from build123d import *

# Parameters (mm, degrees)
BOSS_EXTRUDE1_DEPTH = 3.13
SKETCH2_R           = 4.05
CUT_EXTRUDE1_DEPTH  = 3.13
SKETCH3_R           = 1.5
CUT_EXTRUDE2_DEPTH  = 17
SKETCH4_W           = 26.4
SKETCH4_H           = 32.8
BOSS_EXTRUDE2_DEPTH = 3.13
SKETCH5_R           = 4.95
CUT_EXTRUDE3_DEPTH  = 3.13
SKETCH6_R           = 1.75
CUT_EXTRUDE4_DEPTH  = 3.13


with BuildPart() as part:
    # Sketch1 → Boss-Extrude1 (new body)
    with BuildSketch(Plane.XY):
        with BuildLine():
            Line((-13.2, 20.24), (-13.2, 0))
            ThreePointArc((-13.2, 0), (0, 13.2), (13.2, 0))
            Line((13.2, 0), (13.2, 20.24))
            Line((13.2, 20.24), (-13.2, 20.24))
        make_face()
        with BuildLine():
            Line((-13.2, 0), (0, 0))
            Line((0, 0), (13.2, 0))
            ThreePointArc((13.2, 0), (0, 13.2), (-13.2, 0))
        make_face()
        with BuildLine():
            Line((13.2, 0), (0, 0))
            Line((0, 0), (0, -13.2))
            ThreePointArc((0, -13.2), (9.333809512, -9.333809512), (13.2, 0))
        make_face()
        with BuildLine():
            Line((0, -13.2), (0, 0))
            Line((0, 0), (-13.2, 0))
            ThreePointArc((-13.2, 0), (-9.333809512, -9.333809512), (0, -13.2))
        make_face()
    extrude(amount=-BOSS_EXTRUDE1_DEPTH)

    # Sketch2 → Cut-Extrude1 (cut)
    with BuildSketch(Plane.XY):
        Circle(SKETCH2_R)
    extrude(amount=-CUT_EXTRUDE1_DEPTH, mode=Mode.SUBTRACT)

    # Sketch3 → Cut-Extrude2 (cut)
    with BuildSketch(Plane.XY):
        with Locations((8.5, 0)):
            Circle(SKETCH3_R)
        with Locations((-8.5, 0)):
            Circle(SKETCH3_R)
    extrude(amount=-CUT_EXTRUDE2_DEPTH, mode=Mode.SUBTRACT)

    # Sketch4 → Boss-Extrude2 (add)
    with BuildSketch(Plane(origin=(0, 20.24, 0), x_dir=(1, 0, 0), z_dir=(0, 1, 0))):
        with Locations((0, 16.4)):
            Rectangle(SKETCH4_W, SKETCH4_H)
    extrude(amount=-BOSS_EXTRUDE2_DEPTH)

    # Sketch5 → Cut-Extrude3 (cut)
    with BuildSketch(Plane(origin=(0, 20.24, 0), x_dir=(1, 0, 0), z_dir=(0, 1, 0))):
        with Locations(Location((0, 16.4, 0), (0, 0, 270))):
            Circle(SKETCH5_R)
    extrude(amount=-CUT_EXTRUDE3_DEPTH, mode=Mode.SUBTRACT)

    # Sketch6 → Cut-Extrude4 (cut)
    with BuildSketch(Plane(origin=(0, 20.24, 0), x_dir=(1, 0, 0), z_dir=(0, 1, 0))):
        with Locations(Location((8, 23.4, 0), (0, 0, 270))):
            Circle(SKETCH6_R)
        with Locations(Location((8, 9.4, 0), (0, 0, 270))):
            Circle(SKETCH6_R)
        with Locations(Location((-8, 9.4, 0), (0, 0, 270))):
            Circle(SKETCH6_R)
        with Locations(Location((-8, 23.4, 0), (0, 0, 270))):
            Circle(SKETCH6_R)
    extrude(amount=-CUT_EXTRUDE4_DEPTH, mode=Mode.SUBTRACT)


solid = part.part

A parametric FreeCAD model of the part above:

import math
import FreeCAD as App
import Part
import Sketcher

V = App.Vector

doc = App.newDocument("Part")
params = doc.addObject("Spreadsheet::Sheet", "Params")
for row, (alias, value) in enumerate([
    ("sketch1_radius", "13.2 mm"),
    ("sketch1_height", "20.24 mm"),
    ("pad1_length", "3.13 mm"),
    ("sketch2_diameter", "8.1 mm"),
    ("pocket1_length", "3.13 mm"),
    ("sketch3_diameter", "3 mm"),
    ("pocket2_length", "17 mm"),
    ("sketch4_width", "26.4 mm"),
    ("sketch4_height", "32.8 mm"),
    ("pad2_length", "3.13 mm"),
    ("sketch5_diameter", "9.9 mm"),
    ("pocket3_length", "3.13 mm"),
    ("sketch6_diameter", "3.5 mm"),
    ("pocket4_length", "3.13 mm"),
], start=1):
    params.set(f"A{row}", alias)
    params.set(f"B{row}", "=" + value)
    params.setAlias(f"B{row}", alias)

body = doc.addObject("PartDesign::Body", "Body")

# Sketch on XY plane
sketch1 = doc.addObject("Sketcher::SketchObject", "Sketch")
body.addObject(sketch1)
sketch1.AttachmentSupport = (doc.XY_Plane, [""])
sketch1.MapMode = "FlatFace"
sketch1.addGeometry([
    Part.LineSegment(V(13.2, 0, 0), V(13.2, 20.24, 0)),  # 0
    Part.LineSegment(V(13.2, 20.24, 0), V(-13.2, 20.24, 0)),  # 1
    Part.LineSegment(V(-13.2, 20.24, 0), V(-13.2, 0, 0)),  # 2
    Part.ArcOfCircle(Part.Circle(V(0, 0, 0), V(0, 0, 1), 13.2), math.radians(180), math.radians(270)),  # 3
    Part.ArcOfCircle(Part.Circle(V(0, 0, 0), V(0, 0, 1), 13.2), math.radians(-90), math.radians(0)),  # 4
], False)
sketch1.addConstraint([
    Sketcher.Constraint("Coincident", 0, 2, 1, 1),
    Sketcher.Constraint("Coincident", 1, 2, 2, 1),
    Sketcher.Constraint("Tangent", 2, 2, 3, 1),
    Sketcher.Constraint("Tangent", 3, 2, 4, 1),
    Sketcher.Constraint("Tangent", 4, 2, 0, 1),
    Sketcher.Constraint("Vertical", 0),
    Sketcher.Constraint("Horizontal", 1),
    Sketcher.Constraint("Vertical", 2),
    Sketcher.Constraint("Coincident", 3, 3, -1, 1),
    Sketcher.Constraint("Equal", 3, 4),
    Sketcher.Constraint("PointOnObject", 3, 2, -2),
    Sketcher.Constraint("Radius", 3, 13.2),
    Sketcher.Constraint("DistanceY", 0, 1, 0, 2, 20.24),
])
sketch1.setExpression("Constraints[11]", "Params.sketch1_radius")
sketch1.setExpression("Constraints[12]", "Params.sketch1_height")
pad1 = doc.addObject("PartDesign::Pad", "Pad")
body.addObject(pad1)
pad1.Profile = sketch1
pad1.setExpression("Length", "Params.pad1_length")
pad1.Reversed = True

# Sketch on XY plane
sketch2 = doc.addObject("Sketcher::SketchObject", "Sketch001")
body.addObject(sketch2)
sketch2.AttachmentSupport = (doc.XY_Plane, [""])
sketch2.MapMode = "FlatFace"
sketch2.addGeometry(Part.Circle(V(0, 0, 0), V(0, 0, 1), 4.05), False)
sketch2.addConstraint([
    Sketcher.Constraint("Coincident", 0, 3, -1, 1),
    Sketcher.Constraint("Diameter", 0, 8.1),
])
sketch2.setExpression("Constraints[1]", "Params.sketch2_diameter")
pocket1 = doc.addObject("PartDesign::Pocket", "Pocket")
body.addObject(pocket1)
pocket1.Profile = sketch2
pocket1.setExpression("Length", "Params.pocket1_length")

# Sketch on XY plane
sketch3 = doc.addObject("Sketcher::SketchObject", "Sketch002")
body.addObject(sketch3)
sketch3.AttachmentSupport = (doc.XY_Plane, [""])
sketch3.MapMode = "FlatFace"
sketch3.addGeometry([
    Part.Circle(V(8.5, 0, 0), V(0, 0, 1), 1.5),
    Part.Circle(V(-8.5, 0, 0), V(0, 0, 1), 1.5),
], False)
sketch3.addConstraint([
    Sketcher.Constraint("Equal", 0, 1),
    Sketcher.Constraint("Symmetric", 0, 3, 1, 3, -1, 1),
    Sketcher.Constraint("PointOnObject", 0, 3, -1),
    Sketcher.Constraint("Diameter", 0, 3.0),
    Sketcher.Constraint("DistanceX", 1, 3, 0, 3, 17.0),
])
sketch3.setExpression("Constraints[3]", "Params.sketch3_diameter")
pocket2 = doc.addObject("PartDesign::Pocket", "Pocket001")
body.addObject(pocket2)
pocket2.Profile = sketch3
pocket2.setExpression("Length", "Params.pocket2_length")

# Sketch on XZ plane
sketch4 = doc.addObject("Sketcher::SketchObject", "Sketch003")
body.addObject(sketch4)
sketch4.AttachmentSupport = (doc.XZ_Plane, [""])
sketch4.MapMode = "FlatFace"
sketch4.AttachmentOffset = App.Placement(V(0, 0, -20.24), App.Rotation())
sketch4.addGeometry([
    Part.LineSegment(V(-13.2, -32.8, 0), V(-13.2, 0, 0)),
    Part.LineSegment(V(-13.2, 0, 0), V(13.2, 0, 0)),
    Part.LineSegment(V(13.2, 0, 0), V(13.2, -32.8, 0)),
    Part.LineSegment(V(13.2, -32.8, 0), V(-13.2, -32.8, 0)),
], False)
sketch4.addConstraint([
    Sketcher.Constraint("Coincident", 0, 2, 1, 1),
    Sketcher.Constraint("Coincident", 1, 2, 2, 1),
    Sketcher.Constraint("Coincident", 2, 2, 3, 1),
    Sketcher.Constraint("Coincident", 3, 2, 0, 1),
    Sketcher.Constraint("Vertical", 0),
    Sketcher.Constraint("Horizontal", 1),
    Sketcher.Constraint("Vertical", 2),
    Sketcher.Constraint("Horizontal", 3),
    Sketcher.Constraint("Symmetric", 0, 2, 1, 2, -1, 1),
    Sketcher.Constraint("DistanceX", 1, 1, 1, 2, 26.4),
    Sketcher.Constraint("DistanceY", 0, 1, 0, 2, 32.8),
])
sketch4.setExpression("Constraints[9]", "Params.sketch4_width")
sketch4.setExpression("Constraints[10]", "Params.sketch4_height")
pad2 = doc.addObject("PartDesign::Pad", "Pad001")
body.addObject(pad2)
pad2.Profile = sketch4
pad2.setExpression("Length", "Params.pad2_length")

# Sketch on XZ plane
sketch5 = doc.addObject("Sketcher::SketchObject", "Sketch004")
body.addObject(sketch5)
sketch5.AttachmentSupport = (doc.XZ_Plane, [""])
sketch5.MapMode = "FlatFace"
sketch5.AttachmentOffset = App.Placement(V(0, 0, -20.24), App.Rotation())
sketch5.addGeometry(Part.Circle(V(0, -16.4, 0), V(0, 0, 1), 4.95), False)
sketch5.addConstraint([
    Sketcher.Constraint("PointOnObject", 0, 3, -2),
    Sketcher.Constraint("Diameter", 0, 9.9),
    Sketcher.Constraint("DistanceY", 0, 3, -1, 1, 16.4),
])
sketch5.setExpression("Constraints[1]", "Params.sketch5_diameter")
pocket3 = doc.addObject("PartDesign::Pocket", "Pocket002")
body.addObject(pocket3)
pocket3.Profile = sketch5
pocket3.setExpression("Length", "Params.pocket3_length")
pocket3.Reversed = True

# Sketch on XZ plane
sketch6 = doc.addObject("Sketcher::SketchObject", "Sketch005")
body.addObject(sketch6)
sketch6.AttachmentSupport = (doc.XZ_Plane, [""])
sketch6.MapMode = "FlatFace"
sketch6.AttachmentOffset = App.Placement(V(0, 0, -20.24), App.Rotation())
sketch6.addGeometry([
    Part.Circle(V(8, -23.4, 0), V(0, 0, 1), 1.75),
    Part.Circle(V(8, -9.4, 0), V(0, 0, 1), 1.75),
    Part.Circle(V(-8, -9.4, 0), V(0, 0, 1), 1.75),
    Part.Circle(V(-8, -23.4, 0), V(0, 0, 1), 1.75),
], False)
sketch6.addConstraint([
    Sketcher.Constraint("Equal", 0, 1),
    Sketcher.Constraint("Equal", 1, 2),
    Sketcher.Constraint("Equal", 2, 3),
    Sketcher.Constraint("Symmetric", 1, 3, 2, 3, -2),
    Sketcher.Constraint("Symmetric", 0, 3, 3, 3, -2),
    Sketcher.Constraint("Vertical", 0, 3, 1, 3),
    Sketcher.Constraint("Diameter", 0, 3.5),
    Sketcher.Constraint("DistanceX", -1, 1, 0, 3, 8.0),
    Sketcher.Constraint("DistanceY", 0, 3, 1, 3, 14.0),
    Sketcher.Constraint("DistanceY", 0, 3, -1, 1, 23.4),
])
sketch6.setExpression("Constraints[6]", "Params.sketch6_diameter")
pocket4 = doc.addObject("PartDesign::Pocket", "Pocket003")
body.addObject(pocket4)
pocket4.Profile = sketch6
pocket4.setExpression("Length", "Params.pocket4_length")
pocket4.Reversed = True

doc.recompute()
